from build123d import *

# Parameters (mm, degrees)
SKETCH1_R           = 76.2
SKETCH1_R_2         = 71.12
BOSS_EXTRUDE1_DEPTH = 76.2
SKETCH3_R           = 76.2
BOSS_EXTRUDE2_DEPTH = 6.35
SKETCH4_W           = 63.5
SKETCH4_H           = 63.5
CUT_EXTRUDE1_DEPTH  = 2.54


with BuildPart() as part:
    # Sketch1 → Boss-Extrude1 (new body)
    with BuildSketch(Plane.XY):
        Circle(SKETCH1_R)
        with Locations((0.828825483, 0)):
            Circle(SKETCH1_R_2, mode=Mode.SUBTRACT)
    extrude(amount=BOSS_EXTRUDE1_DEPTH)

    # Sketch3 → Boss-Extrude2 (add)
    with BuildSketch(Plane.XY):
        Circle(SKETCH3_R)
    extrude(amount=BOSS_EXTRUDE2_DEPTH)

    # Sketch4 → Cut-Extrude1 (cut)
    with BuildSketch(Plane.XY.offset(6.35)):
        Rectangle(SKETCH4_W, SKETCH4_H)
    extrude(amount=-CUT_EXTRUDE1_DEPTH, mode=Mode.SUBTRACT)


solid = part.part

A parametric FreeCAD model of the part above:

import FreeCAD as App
import Part
import Sketcher
from FreeCAD import Vector
Q = App.Units.Quantity

doc = App.newDocument("Part")
body = doc.addObject("PartDesign::Body", "Body")

# Sketch on XY plane
sketch1 = doc.addObject("Sketcher::SketchObject", "Sketch")
body.addObject(sketch1)
sketch1.AttachmentSupport = (doc.XY_Plane, [""])
sketch1.MapMode = "FlatFace"
sketch1.addGeometry([
    Part.Circle(Vector(0, 0, 0), Vector(0, 0, 1), 76),
    Part.Circle(Vector(1, 0, 0), Vector(0, 0, 1), 71),
], False)
sketch1.addConstraint([
    Sketcher.Constraint("Coincident", 0, 3, -1, 1),
    Sketcher.Constraint("PointOnObject", 1, 3, -1),
    Sketcher.Constraint("Diameter", 0, Q("6 in")),
    Sketcher.Constraint("Diameter", 1, Q("5.6 in")),
    Sketcher.Constraint("DistanceX", -1, 1, 1, 3, Q("0.828825 mm")),
])
pad1 = doc.addObject("PartDesign::Pad", "Pad")
body.addObject(pad1)
pad1.Profile = sketch1
pad1.Length = Q("3 in")

# Sketch on XY plane
sketch2 = doc.addObject("Sketcher::SketchObject", "Sketch001")
body.addObject(sketch2)
sketch2.AttachmentSupport = (doc.XY_Plane, [""])
sketch2.MapMode = "FlatFace"
sketch2.addGeometry(Part.Circle(Vector(0, 0, 0), Vector(0, 0, 1), 76), False)
sketch2.addConstraint([
    Sketcher.Constraint("Coincident", 0, 3, -1, 1),
    Sketcher.Constraint("Diameter", 0, Q("6 in")),
])
pad2 = doc.addObject("PartDesign::Pad", "Pad001")
body.addObject(pad2)
pad2.Profile = sketch2
pad2.Length = Q("0.25 in")

# Sketch on XY plane
sketch3 = doc.addObject("Sketcher::SketchObject", "Sketch002")
body.addObject(sketch3)
sketch3.AttachmentSupport = (doc.XY_Plane, [""])
sketch3.MapMode = "FlatFace"
sketch3.AttachmentOffset = App.Placement(Vector(0, 0, 0.25 * 25.4), App.Rotation())
sketch3.addGeometry([
    Part.LineSegment(Vector(-32, 32, 0), Vector(-32, -32, 0)),
    Part.LineSegment(Vector(-32, -32, 0), Vector(32, -32, 0)),
    Part.LineSegment(Vector(32, -32, 0), Vector(32, 32, 0)),
    Part.LineSegment(Vector(32, 32, 0), Vector(-32, 32, 0)),
], False)
sketch3.addConstraint([
    Sketcher.Constraint("Coincident", 0, 2, 1, 1),
    Sketcher.Constraint("Coincident", 1, 2, 2, 1),
    Sketcher.Constraint("Coincident", 2, 2, 3, 1),
    Sketcher.Constraint("Coincident", 3, 2, 0, 1),
    Sketcher.Constraint("Vertical", 0),
    Sketcher.Constraint("Horizontal", 1),
    Sketcher.Constraint("Vertical", 2),
    Sketcher.Constraint("Horizontal", 3),
    Sketcher.Constraint("Symmetric", 0, 2, 2, 2, -1, 1),
    Sketcher.Constraint("Equal", 3, 0),
    Sketcher.Constraint("DistanceX", 1, 1, 1, 2, Q("2.5 in")),
])
pocket1 = doc.addObject("PartDesign::Pocket", "Pocket")
body.addObject(pocket1)
pocket1.Profile = sketch3
pocket1.Length = Q("0.1 in")

doc.recompute()
